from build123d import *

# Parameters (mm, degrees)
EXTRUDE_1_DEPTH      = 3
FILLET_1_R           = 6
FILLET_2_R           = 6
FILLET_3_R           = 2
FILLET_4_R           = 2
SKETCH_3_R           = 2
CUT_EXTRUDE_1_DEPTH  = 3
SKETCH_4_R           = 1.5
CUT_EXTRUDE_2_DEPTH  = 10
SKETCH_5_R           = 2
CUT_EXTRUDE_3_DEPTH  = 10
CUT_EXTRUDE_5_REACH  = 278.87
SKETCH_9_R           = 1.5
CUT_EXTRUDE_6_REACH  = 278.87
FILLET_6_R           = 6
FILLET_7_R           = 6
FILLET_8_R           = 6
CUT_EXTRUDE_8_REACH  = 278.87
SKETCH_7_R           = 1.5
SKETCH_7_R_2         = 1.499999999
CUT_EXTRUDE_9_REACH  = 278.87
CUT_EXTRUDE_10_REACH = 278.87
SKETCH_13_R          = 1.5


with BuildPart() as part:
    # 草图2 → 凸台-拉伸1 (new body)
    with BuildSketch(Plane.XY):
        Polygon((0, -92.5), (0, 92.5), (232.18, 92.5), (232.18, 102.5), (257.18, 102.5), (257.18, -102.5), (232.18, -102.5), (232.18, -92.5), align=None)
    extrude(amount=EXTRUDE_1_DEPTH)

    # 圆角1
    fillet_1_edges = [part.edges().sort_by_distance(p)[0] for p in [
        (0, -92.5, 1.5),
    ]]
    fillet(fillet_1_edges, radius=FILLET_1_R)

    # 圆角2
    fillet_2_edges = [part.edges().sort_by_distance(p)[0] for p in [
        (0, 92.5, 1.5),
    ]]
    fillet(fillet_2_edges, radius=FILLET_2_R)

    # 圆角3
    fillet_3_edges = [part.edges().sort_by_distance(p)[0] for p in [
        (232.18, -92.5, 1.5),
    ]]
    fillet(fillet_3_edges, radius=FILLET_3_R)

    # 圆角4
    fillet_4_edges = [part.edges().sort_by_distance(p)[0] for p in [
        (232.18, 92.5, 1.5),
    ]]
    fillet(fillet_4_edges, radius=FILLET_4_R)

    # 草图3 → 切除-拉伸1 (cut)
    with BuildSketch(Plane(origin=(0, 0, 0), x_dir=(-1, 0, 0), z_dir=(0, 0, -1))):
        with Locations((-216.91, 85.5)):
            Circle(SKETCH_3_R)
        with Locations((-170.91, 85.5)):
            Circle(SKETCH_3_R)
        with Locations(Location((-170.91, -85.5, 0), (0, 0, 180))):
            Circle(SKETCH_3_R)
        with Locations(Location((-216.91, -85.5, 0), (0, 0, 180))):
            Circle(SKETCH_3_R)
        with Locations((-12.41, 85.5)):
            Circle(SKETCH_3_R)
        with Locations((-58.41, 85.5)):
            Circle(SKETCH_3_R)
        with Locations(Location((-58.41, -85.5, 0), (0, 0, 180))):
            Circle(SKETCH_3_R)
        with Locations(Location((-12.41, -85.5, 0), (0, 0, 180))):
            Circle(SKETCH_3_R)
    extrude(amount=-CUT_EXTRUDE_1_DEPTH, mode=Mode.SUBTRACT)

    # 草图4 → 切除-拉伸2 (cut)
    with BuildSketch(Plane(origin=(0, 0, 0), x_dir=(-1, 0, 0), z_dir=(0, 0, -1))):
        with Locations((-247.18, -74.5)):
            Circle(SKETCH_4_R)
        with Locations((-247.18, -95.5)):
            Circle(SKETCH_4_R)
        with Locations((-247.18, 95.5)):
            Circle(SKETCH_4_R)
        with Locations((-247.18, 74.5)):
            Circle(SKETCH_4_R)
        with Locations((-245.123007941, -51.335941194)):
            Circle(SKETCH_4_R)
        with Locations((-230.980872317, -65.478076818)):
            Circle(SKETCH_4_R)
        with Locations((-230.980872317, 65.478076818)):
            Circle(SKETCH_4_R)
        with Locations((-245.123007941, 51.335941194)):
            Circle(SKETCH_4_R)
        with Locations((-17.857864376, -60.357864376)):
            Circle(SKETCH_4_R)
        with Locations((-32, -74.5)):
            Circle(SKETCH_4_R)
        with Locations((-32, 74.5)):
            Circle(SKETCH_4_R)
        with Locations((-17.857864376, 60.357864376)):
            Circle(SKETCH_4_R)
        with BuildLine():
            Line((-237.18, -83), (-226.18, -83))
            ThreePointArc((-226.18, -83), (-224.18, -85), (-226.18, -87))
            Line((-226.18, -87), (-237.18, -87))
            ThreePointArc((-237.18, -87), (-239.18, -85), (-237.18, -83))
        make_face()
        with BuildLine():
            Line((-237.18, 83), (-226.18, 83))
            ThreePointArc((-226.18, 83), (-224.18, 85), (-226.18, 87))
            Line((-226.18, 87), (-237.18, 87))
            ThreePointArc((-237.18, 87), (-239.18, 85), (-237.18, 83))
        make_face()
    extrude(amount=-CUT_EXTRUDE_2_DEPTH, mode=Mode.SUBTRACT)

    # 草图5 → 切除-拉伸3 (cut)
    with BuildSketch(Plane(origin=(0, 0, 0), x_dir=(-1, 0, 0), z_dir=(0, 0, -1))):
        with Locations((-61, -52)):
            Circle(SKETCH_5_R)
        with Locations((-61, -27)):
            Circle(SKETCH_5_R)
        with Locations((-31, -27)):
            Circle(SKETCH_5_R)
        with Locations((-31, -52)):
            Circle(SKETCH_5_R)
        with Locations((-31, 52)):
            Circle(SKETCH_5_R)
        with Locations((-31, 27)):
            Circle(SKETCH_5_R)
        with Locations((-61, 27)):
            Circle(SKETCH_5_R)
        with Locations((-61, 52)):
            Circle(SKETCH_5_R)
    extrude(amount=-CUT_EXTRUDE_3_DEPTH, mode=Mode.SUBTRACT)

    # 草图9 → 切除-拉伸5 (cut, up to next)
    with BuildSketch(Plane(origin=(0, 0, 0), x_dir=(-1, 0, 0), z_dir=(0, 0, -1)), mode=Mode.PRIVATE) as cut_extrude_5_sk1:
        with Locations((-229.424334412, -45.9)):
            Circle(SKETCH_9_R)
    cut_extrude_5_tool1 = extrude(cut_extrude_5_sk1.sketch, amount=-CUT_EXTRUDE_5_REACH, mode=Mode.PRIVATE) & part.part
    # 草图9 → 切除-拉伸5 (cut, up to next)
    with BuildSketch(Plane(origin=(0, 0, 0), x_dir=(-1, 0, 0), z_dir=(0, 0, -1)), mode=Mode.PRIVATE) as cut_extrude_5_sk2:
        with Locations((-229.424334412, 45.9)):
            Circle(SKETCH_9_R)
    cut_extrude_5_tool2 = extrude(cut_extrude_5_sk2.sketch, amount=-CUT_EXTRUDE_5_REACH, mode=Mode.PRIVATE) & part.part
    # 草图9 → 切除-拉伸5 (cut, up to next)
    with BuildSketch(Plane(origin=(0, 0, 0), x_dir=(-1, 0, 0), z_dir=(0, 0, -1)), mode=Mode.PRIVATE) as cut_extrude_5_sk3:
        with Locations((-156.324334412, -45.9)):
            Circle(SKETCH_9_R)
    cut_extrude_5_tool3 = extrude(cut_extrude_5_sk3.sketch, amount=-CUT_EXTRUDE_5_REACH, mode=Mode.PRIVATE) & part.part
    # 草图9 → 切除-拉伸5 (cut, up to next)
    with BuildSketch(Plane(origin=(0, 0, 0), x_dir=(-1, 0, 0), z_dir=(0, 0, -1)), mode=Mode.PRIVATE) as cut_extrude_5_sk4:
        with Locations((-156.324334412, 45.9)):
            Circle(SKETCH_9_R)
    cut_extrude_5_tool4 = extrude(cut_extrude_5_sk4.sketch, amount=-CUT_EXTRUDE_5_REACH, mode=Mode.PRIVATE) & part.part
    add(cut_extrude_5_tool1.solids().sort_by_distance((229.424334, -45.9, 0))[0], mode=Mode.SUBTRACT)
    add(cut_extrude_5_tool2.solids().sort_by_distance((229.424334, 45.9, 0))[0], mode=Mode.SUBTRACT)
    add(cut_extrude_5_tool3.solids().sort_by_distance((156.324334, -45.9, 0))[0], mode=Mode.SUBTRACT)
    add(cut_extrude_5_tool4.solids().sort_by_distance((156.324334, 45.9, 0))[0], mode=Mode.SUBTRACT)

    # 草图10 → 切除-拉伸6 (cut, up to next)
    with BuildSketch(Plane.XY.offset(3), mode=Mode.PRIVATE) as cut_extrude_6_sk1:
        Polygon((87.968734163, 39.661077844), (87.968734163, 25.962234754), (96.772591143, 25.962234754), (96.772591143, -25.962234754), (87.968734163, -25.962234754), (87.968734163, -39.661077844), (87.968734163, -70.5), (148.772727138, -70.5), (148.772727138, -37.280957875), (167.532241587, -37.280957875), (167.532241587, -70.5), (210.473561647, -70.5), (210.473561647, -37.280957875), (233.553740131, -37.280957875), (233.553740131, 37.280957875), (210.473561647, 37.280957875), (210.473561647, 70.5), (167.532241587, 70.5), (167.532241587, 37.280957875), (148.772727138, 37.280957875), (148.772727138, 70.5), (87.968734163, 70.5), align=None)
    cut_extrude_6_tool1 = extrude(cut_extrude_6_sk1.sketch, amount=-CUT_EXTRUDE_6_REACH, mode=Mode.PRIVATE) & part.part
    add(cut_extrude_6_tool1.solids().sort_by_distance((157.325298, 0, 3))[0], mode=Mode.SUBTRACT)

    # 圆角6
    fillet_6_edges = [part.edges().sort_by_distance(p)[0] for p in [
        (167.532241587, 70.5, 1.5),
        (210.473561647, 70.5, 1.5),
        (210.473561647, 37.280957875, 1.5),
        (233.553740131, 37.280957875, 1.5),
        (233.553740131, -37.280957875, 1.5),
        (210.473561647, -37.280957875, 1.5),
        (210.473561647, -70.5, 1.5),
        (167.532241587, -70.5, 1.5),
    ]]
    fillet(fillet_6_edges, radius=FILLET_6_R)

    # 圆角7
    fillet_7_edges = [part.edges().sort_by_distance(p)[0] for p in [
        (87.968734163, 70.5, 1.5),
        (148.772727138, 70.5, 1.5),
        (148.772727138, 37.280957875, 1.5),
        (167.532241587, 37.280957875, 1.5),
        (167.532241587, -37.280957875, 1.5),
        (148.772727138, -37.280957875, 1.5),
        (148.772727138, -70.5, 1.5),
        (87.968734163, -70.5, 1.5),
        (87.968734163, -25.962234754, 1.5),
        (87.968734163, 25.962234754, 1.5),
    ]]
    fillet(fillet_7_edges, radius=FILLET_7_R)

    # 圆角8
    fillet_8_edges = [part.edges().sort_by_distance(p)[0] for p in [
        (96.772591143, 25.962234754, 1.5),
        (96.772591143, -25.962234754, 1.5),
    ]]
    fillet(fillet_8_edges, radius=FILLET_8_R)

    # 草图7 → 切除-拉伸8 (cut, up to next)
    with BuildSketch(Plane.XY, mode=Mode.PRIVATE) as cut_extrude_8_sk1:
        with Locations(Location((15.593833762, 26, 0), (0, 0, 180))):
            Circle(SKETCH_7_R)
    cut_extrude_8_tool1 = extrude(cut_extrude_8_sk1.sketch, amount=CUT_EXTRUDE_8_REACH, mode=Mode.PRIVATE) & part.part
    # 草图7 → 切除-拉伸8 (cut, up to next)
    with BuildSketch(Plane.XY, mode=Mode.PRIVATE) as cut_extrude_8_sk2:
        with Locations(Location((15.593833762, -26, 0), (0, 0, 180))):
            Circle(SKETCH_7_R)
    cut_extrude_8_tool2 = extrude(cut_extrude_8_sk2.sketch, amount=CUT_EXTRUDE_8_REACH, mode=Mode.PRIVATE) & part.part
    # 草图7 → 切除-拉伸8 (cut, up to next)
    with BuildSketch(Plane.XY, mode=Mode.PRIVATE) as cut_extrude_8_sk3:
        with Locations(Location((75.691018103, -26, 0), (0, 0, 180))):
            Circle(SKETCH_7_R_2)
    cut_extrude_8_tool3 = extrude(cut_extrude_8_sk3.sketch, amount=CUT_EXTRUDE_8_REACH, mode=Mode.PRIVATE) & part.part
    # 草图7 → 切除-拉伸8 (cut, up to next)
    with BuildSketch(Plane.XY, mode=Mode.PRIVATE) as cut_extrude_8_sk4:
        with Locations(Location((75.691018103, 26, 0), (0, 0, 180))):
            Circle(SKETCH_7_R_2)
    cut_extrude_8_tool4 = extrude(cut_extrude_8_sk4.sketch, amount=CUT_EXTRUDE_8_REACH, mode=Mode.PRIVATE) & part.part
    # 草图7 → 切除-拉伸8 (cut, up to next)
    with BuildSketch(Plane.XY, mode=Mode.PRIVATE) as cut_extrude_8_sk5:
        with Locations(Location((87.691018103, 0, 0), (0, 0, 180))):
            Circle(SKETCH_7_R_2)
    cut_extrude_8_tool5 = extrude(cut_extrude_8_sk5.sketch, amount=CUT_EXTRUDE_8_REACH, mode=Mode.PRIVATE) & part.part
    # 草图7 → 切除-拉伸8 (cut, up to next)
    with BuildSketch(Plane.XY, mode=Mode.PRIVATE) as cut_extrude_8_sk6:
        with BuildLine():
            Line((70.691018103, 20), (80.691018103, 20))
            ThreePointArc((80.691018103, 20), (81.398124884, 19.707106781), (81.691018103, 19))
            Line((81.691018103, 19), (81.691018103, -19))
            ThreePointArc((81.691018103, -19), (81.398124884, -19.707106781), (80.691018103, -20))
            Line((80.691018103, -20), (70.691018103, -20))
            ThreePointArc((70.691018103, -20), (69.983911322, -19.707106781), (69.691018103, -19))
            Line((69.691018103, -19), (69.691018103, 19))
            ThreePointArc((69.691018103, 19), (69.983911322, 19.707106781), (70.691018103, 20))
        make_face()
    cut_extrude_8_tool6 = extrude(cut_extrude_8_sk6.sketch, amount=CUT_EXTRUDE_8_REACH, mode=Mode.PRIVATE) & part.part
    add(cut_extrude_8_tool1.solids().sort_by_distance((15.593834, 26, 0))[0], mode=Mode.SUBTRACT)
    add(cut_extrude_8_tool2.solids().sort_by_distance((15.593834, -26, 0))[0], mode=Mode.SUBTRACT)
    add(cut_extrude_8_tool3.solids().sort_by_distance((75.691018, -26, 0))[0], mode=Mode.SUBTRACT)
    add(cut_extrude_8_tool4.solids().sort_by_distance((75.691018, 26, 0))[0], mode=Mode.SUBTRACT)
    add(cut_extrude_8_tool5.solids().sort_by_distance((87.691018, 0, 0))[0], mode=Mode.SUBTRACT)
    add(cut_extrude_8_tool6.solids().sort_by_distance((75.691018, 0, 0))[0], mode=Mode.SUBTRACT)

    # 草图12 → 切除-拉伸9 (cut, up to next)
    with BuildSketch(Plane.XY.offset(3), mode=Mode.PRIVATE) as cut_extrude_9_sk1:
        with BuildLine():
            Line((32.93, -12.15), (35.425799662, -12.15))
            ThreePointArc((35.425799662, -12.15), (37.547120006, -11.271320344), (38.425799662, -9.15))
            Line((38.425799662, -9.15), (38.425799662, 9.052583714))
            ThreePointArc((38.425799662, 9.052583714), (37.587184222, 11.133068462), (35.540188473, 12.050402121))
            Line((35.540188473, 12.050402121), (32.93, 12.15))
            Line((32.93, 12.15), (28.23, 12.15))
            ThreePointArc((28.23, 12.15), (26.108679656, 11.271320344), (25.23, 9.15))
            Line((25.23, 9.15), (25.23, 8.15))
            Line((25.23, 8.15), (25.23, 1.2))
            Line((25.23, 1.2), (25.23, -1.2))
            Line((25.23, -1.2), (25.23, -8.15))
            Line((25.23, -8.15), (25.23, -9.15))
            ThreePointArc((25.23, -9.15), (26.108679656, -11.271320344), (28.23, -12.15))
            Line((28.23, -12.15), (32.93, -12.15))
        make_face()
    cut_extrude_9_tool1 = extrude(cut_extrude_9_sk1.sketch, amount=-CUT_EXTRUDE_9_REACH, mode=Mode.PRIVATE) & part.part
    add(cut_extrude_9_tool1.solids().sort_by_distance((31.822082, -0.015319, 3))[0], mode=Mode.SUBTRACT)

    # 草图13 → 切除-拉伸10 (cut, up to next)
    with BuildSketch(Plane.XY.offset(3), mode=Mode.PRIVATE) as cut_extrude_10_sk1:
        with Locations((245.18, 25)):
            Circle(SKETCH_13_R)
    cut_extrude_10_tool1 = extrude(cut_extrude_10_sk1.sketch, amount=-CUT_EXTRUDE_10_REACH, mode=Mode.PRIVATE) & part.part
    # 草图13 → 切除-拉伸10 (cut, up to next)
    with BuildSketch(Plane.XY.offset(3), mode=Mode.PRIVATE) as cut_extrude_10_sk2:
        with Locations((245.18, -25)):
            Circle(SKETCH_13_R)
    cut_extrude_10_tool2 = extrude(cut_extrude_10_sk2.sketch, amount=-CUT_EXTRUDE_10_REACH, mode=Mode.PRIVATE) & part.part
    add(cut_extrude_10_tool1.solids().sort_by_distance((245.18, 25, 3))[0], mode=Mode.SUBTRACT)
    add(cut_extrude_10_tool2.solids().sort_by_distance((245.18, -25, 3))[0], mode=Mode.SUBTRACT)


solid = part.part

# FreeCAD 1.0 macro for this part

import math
import FreeCAD as App
import Part
import Sketcher

V = App.Vector
Q = App.Units.Quantity


def edges_at(feature, points):
    """Names of the edges that pass closest to the given points."""
    edges = feature.Shape.Edges
    near = lambda p: min(range(len(edges)), key=lambda i: edges[i].distToShape(Part.Vertex(*p))[0])
    return sorted({f"Edge{near(p) + 1}" for p in points})


def add_polygon(sketch, points):
    """Adds a closed chain of lines whose ends are joined by coincident constraints."""
    first, n = sketch.GeometryCount, len(points)
    for a, b in zip(points, points[1:] + points[:1]):
        sketch.addGeometry(Part.LineSegment(App.Vector(*a, 0), App.Vector(*b, 0)), False)
    for i in range(n):
        sketch.addConstraint(Sketcher.Constraint("Coincident", first + i, 2, first + (i + 1) % n, 1))

doc = App.newDocument("Part")
body = doc.addObject("PartDesign::Body", "Body")

# Sketch on XY plane
sketch1 = body.newObject("Sketcher::SketchObject", "Sketch")
sketch1.AttachmentSupport = (doc.getObject("XY_Plane"), [""])
sketch1.MapMode = "FlatFace"
add_polygon(sketch1, [(0, 92), (0, -92), (232, -92), (232, -102), (257, -102), (257, 102), (232, 102), (232, 92)])  # lines 0-7
sketch1.addConstraint([
    Sketcher.Constraint("Vertical", 0),
    Sketcher.Constraint("Horizontal", 1),
    Sketcher.Constraint("Vertical", 2),
    Sketcher.Constraint("Horizontal", 3),
    Sketcher.Constraint("Vertical", 4),
    Sketcher.Constraint("Horizontal", 5),
    Sketcher.Constraint("Vertical", 6),
    Sketcher.Constraint("Horizontal", 7),
    Sketcher.Constraint("Symmetric", 0, 2, 7, 2, -1, 1),
    Sketcher.Constraint("Symmetric", 2, 2, 5, 2, -1),
    Sketcher.Constraint("DistanceX", 3, 1, 3, 2, Q("25 mm")),
    Sketcher.Constraint("DistanceY", 0, 2, 0, 1, Q("185 mm")),
    Sketcher.Constraint("DistanceY", 2, 2, 2, 1, Q("10 mm")),
    Sketcher.Constraint("DistanceX", 1, 1, 1, 2, Q("232.18 mm")),
])
pad1 = body.newObject("PartDesign::Pad", "Pad")
pad1.Profile = sketch1
pad1.Length = 3
doc.recompute()

fillet = body.newObject("PartDesign::Fillet", "Fillet")
fillet.Base = (pad1, edges_at(pad1, [(0, -92.5, 1.5)]))
fillet.Radius = 6
doc.recompute()

fillet2 = body.newObject("PartDesign::Fillet", "Fillet001")
fillet2.Base = (fillet, edges_at(fillet, [(0, 92.5, 1.5)]))
fillet2.Radius = 6
doc.recompute()

fillet3 = body.newObject("PartDesign::Fillet", "Fillet002")
fillet3.Base = (fillet2, edges_at(fillet2, [(232.18, -92.5, 1.5)]))
fillet3.Radius = 2
doc.recompute()

fillet4 = body.newObject("PartDesign::Fillet", "Fillet003")
fillet4.Base = (fillet3, edges_at(fillet3, [(232.18, 92.5, 1.5)]))
fillet4.Radius = 2

# Sketch on XY plane
sketch2 = body.newObject("Sketcher::SketchObject", "Sketch001")
sketch2.AttachmentSupport = (doc.getObject("XY_Plane"), [""])
sketch2.MapMode = "FlatFace"
sketch2.addGeometry([
    Part.Circle(V(216.9, 85.5, 0), V(0, 0, 1), 2),  # 0
    Part.Circle(V(170.9, 85.5, 0), V(0, 0, 1), 2),  # 1
    Part.Circle(V(170.9, -85.5, 0), V(0, 0, 1), 2),  # 2
    Part.Circle(V(216.9, -85.5, 0), V(0, 0, 1), 2),  # 3
    Part.Circle(V(12.4, 85.5, 0), V(0, 0, 1), 2),  # 4
    Part.Circle(V(58.4, 85.5, 0), V(0, 0, 1), 2),  # 5
    Part.Circle(V(58.4, -85.5, 0), V(0, 0, 1), 2),  # 6
    Part.Circle(V(12.4, -85.5, 0), V(0, 0, 1), 2),  # 7
], False)
sketch2.addConstraint([
    Sketcher.Constraint("Equal", 0, 1),
    Sketcher.Constraint("Equal", 1, 2),
    Sketcher.Constraint("Equal", 2, 3),
    Sketcher.Constraint("Equal", 3, 4),
    Sketcher.Constraint("Equal", 4, 5),
    Sketcher.Constraint("Equal", 5, 6),
    Sketcher.Constraint("Equal", 6, 7),
    Sketcher.Constraint("Symmetric", 1, 3, 2, 3, -1),
    Sketcher.Constraint("Symmetric", 0, 3, 3, 3, -1),
    Sketcher.Constraint("Symmetric", 5, 3, 6, 3, -1),
    Sketcher.Constraint("Symmetric", 4, 3, 7, 3, -1),
    Sketcher.Constraint("Horizontal", 0, 3, 1, 3),
    Sketcher.Constraint("Horizontal", 1, 3, 4, 3),
    Sketcher.Constraint("Horizontal", 4, 3, 5, 3),
    Sketcher.Constraint("Diameter", 0, Q("4 mm")),
    Sketcher.Constraint("DistanceX", 1, 3, 0, 3, Q("46 mm")),
    Sketcher.Constraint("DistanceY", 2, 3, 1, 3, Q("171 mm")),
    Sketcher.Constraint("DistanceX", 4, 3, 5, 3, Q("46 mm")),
    Sketcher.Constraint("DistanceX", 4, 3, 1, 3, Q("158.5 mm")),
    Sketcher.Constraint("DistanceX", -1, 1, 0, 3, Q("216.91 mm")),
])
pocket1 = body.newObject("PartDesign::Pocket", "Pocket")
pocket1.Profile = sketch2
pocket1.Length = 3
pocket1.Reversed = True

# Sketch on XY plane
sketch3 = body.newObject("Sketcher::SketchObject", "Sketch002")
sketch3.AttachmentSupport = (doc.getObject("XY_Plane"), [""])
sketch3.MapMode = "FlatFace"
sketch3.addGeometry([
    Part.Circle(V(247.2, -74.5, 0), V(0, 0, 1), 1.5),  # 0
    Part.Circle(V(247.2, -95.5, 0), V(0, 0, 1), 1.5),  # 1
    Part.Circle(V(247.2, 95.5, 0), V(0, 0, 1), 1.5),  # 2
    Part.Circle(V(247.2, 74.5, 0), V(0, 0, 1), 1.5),  # 3
    Part.Circle(V(245.1, -51.3, 0), V(0, 0, 1), 1.5),  # 4
    Part.Circle(V(231, -65.5, 0), V(0, 0, 1), 1.5),  # 5
    Part.Circle(V(231, 65.5, 0), V(0, 0, 1), 1.5),  # 6
    Part.Circle(V(245.1, 51.3, 0), V(0, 0, 1), 1.5),  # 7
    Part.Circle(V(17.9, -60.4, 0), V(0, 0, 1), 1.5),  # 8
    Part.Circle(V(32, -74.5, 0), V(0, 0, 1), 1.5),  # 9
    Part.Circle(V(32, 74.5, 0), V(0, 0, 1), 1.5),  # 10
    Part.Circle(V(17.9, 60.4, 0), V(0, 0, 1), 1.5),  # 11
    Part.LineSegment(V(226.2, -83, 0), V(237.2, -83, 0)),  # 12
    Part.ArcOfCircle(Part.Circle(V(237.2, -85, 0), V(0, 0, 1), 2), math.radians(-90), math.radians(90)),  # 13
    Part.LineSegment(V(237.2, -87, 0), V(226.2, -87, 0)),  # 14
    Part.ArcOfCircle(Part.Circle(V(226.2, -85, 0), V(0, 0, 1), 2), math.radians(90), math.radians(270)),  # 15
    Part.LineSegment(V(237.2, 83, 0), V(226.2, 83, 0)),  # 16
    Part.ArcOfCircle(Part.Circle(V(226.2, 85, 0), V(0, 0, 1), 2), math.radians(90), math.radians(270)),  # 17
    Part.LineSegment(V(226.2, 87, 0), V(237.2, 87, 0)),  # 18
    Part.ArcOfCircle(Part.Circle(V(237.2, 85, 0), V(0, 0, 1), 2), math.radians(-90), math.radians(90)),  # 19
], False)
sketch3.addConstraint([
    Sketcher.Constraint("Tangent", 12, 2, 13, 2),
    Sketcher.Constraint("Tangent", 13, 1, 14, 1),
    Sketcher.Constraint("Tangent", 14, 2, 15, 2),
    Sketcher.Constraint("Tangent", 15, 1, 12, 1),
    Sketcher.Constraint("Tangent", 16, 2, 17, 2),
    Sketcher.Constraint("Tangent", 17, 1, 18, 1),
    Sketcher.Constraint("Tangent", 18, 2, 19, 2),
    Sketcher.Constraint("Tangent", 19, 1, 16, 1),
    Sketcher.Constraint("Horizontal", 12),
    Sketcher.Constraint("Horizontal", 14),
    Sketcher.Constraint("Horizontal", 16),
    Sketcher.Constraint("Horizontal", 18),
    Sketcher.Constraint("Equal", 0, 1),
    Sketcher.Constraint("Equal", 1, 2),
    Sketcher.Constraint("Equal", 2, 3),
    Sketcher.Constraint("Equal", 3, 4),
    Sketcher.Constraint("Equal", 4, 5),
    Sketcher.Constraint("Equal", 5, 6),
    Sketcher.Constraint("Equal", 6, 7),
    Sketcher.Constraint("Equal", 7, 8),
    Sketcher.Constraint("Equal", 8, 9),
    Sketcher.Constraint("Equal", 9, 10),
    Sketcher.Constraint("Equal", 10, 11),
    Sketcher.Constraint("Equal", 15, 17),
    Sketcher.Constraint("Symmetric", 1, 3, 2, 3, -1),
    Sketcher.Constraint("Symmetric", 0, 3, 3, 3, -1),
    Sketcher.Constraint("Symmetric", 5, 3, 6, 3, -1),
    Sketcher.Constraint("Symmetric", 4, 3, 7, 3, -1),
    Sketcher.Constraint("Symmetric", 9, 3, 10, 3, -1),
    Sketcher.Constraint("Symmetric", 8, 3, 11, 3, -1),
    Sketcher.Constraint("Symmetric", 15, 3, 17, 3, -1),
    Sketcher.Constraint("Horizontal", 0, 3, 9, 3),
    Sketcher.Constraint("Vertical", 0, 3, 1, 3),
    Sketcher.Constraint("Vertical", 13, 3, 19, 3),
    Sketcher.Constraint("Diameter", 0, Q("3 mm")),
    Sketcher.Constraint("Radius", 13, Q("2 mm")),
    Sketcher.Constraint("DistanceX", 12, 1, 12, 2, Q("11 mm")),
    Sketcher.Constraint("DistanceX", -1, 1, 9, 3, Q("32 mm")),
    Sketcher.Constraint("DistanceY", 13, 3, -1, 1, Q("85 mm")),
    Sketcher.Constraint("DistanceY", 1, 3, 0, 3, Q("21 mm")),
    Sketcher.Constraint("DistanceY", 0, 3, 2, 3, Q("170 mm")),
    Sketcher.Constraint("DistanceX", 13, 3, 0, 3, Q("10 mm")),
    Sketcher.Constraint("DistanceX", -1, 1, 0, 3, Q("247.18 mm")),
    Sketcher.Constraint("DistanceY", 4, 3, -1, 1, Q("51.335941 mm")),
    Sketcher.Constraint("DistanceY", 4, 3, 6, 3, Q("116.814018 mm")),
    Sketcher.Constraint("DistanceY", 8, 3, 6, 3, Q("125.835941 mm")),
    Sketcher.Constraint("DistanceX", -1, 1, 4, 3, Q("245.123008 mm")),
    Sketcher.Constraint("DistanceX", -1, 1, 5, 3, Q("230.980872 mm")),
    Sketcher.Constraint("DistanceX", -1, 1, 8, 3, Q("17.857864 mm")),
])
pocket2 = body.newObject("PartDesign::Pocket", "Pocket001")
pocket2.Profile = sketch3
pocket2.Length = 10
pocket2.Reversed = True

# Sketch on XY plane
sketch4 = body.newObject("Sketcher::SketchObject", "Sketch003")
sketch4.AttachmentSupport = (doc.getObject("XY_Plane"), [""])
sketch4.MapMode = "FlatFace"
sketch4.addGeometry([
    Part.Circle(V(61, -52, 0), V(0, 0, 1), 2),  # 0
    Part.Circle(V(61, -27, 0), V(0, 0, 1), 2),  # 1
    Part.Circle(V(31, -27, 0), V(0, 0, 1), 2),  # 2
    Part.Circle(V(31, -52, 0), V(0, 0, 1), 2),  # 3
    Part.Circle(V(31, 52, 0), V(0, 0, 1), 2),  # 4
    Part.Circle(V(31, 27, 0), V(0, 0, 1), 2),  # 5
    Part.Circle(V(61, 27, 0), V(0, 0, 1), 2),  # 6
    Part.Circle(V(61, 52, 0), V(0, 0, 1), 2),  # 7
], False)
sketch4.addConstraint([
    Sketcher.Constraint("Equal", 0, 1),
    Sketcher.Constraint("Equal", 1, 2),
    Sketcher.Constraint("Equal", 2, 3),
    Sketcher.Constraint("Equal", 3, 4),
    Sketcher.Constraint("Equal", 4, 5),
    Sketcher.Constraint("Equal", 5, 6),
    Sketcher.Constraint("Equal", 6, 7),
    Sketcher.Constraint("Symmetric", 3, 3, 4, 3, -1),
    Sketcher.Constraint("Symmetric", 2, 3, 5, 3, -1),
    Sketcher.Constraint("Symmetric", 1, 3, 6, 3, -1),
    Sketcher.Constraint("Symmetric", 0, 3, 7, 3, -1),
    Sketcher.Constraint("Horizontal", 1, 3, 2, 3),
    Sketcher.Constraint("Horizontal", 0, 3, 3, 3),
    Sketcher.Constraint("Vertical", 0, 3, 1, 3),
    Sketcher.Constraint("Vertical", 2, 3, 3, 3),
    Sketcher.Constraint("Diameter", 0, Q("4 mm")),
    Sketcher.Constraint("DistanceX", -1, 1, 0, 3, Q("61 mm")),
    Sketcher.Constraint("DistanceY", 0, 3, -1, 1, Q("52 mm")),
    Sketcher.Constraint("DistanceY", 1, 3, -1, 1, Q("27 mm")),
    Sketcher.Constraint("DistanceX", -1, 1, 2, 3, Q("31 mm")),
])
pocket3 = body.newObject("PartDesign::Pocket", "Pocket002")
pocket3.Profile = sketch4
pocket3.Length = 10
pocket3.Reversed = True

# Sketch on XY plane
sketch5 = body.newObject("Sketcher::SketchObject", "Sketch004")
sketch5.AttachmentSupport = (doc.getObject("XY_Plane"), [""])
sketch5.MapMode = "FlatFace"
sketch5.addGeometry(Part.Circle(V(229.4, -45.9, 0), V(0, 0, 1), 1.5), False)
sketch5.addConstraint([
    Sketcher.Constraint("Diameter", 0, Q("3 mm")),
    Sketcher.Constraint("DistanceY", 0, 3, -1, 1, Q("45.9 mm")),
    Sketcher.Constraint("DistanceX", -1, 1, 0, 3, Q("229.424334 mm")),
])
pocket4 = body.newObject("PartDesign::Pocket", "Pocket003")
pocket4.Profile = sketch5
pocket4.Type = "UpToFirst"
pocket4.Reversed = True

# Sketch on XY plane
sketch6 = body.newObject("Sketcher::SketchObject", "Sketch005")
sketch6.AttachmentSupport = (doc.getObject("XY_Plane"), [""])
sketch6.MapMode = "FlatFace"
sketch6.addGeometry(Part.Circle(V(229.4, 45.9, 0), V(0, 0, 1), 1.5), False)
sketch6.addConstraint([
    Sketcher.Constraint("Diameter", 0, Q("3 mm")),
    Sketcher.Constraint("DistanceY", -1, 1, 0, 3, Q("45.9 mm")),
    Sketcher.Constraint("DistanceX", -1, 1, 0, 3, Q("229.424334 mm")),
])
pocket5 = body.newObject("PartDesign::Pocket", "Pocket004")
pocket5.Profile = sketch6
pocket5.Type = "UpToFirst"
pocket5.Reversed = True

# Sketch on XY plane
sketch7 = body.newObject("Sketcher::SketchObject", "Sketch006")
sketch7.AttachmentSupport = (doc.getObject("XY_Plane"), [""])
sketch7.MapMode = "FlatFace"
sketch7.addGeometry(Part.Circle(V(156.3, -45.9, 0), V(0, 0, 1), 1.5), False)
sketch7.addConstraint([
    Sketcher.Constraint("Diameter", 0, Q("3 mm")),
    Sketcher.Constraint("DistanceY", 0, 3, -1, 1, Q("45.9 mm")),
    Sketcher.Constraint("DistanceX", -1, 1, 0, 3, Q("156.324334 mm")),
])
pocket6 = body.newObject("PartDesign::Pocket", "Pocket005")
pocket6.Profile = sketch7
pocket6.Type = "UpToFirst"
pocket6.Reversed = True

# Sketch on XY plane
sketch8 = body.newObject("Sketcher::SketchObject", "Sketch007")
sketch8.AttachmentSupport = (doc.getObject("XY_Plane"), [""])
sketch8.MapMode = "FlatFace"
sketch8.addGeometry(Part.Circle(V(156.3, 45.9, 0), V(0, 0, 1), 1.5), False)
sketch8.addConstraint([
    Sketcher.Constraint("Diameter", 0, Q("3 mm")),
    Sketcher.Constraint("DistanceY", -1, 1, 0, 3, Q("45.9 mm")),
    Sketcher.Constraint("DistanceX", -1, 1, 0, 3, Q("156.324334 mm")),
])
pocket7 = body.newObject("PartDesign::Pocket", "Pocket006")
pocket7.Profile = sketch8
pocket7.Type = "UpToFirst"
pocket7.Reversed = True

# Sketch on XY plane
sketch9 = body.newObject("Sketcher::SketchObject", "Sketch008")
sketch9.AttachmentSupport = (doc.getObject("XY_Plane"), [""])
sketch9.MapMode = "FlatFace"
sketch9.AttachmentOffset = App.Placement(V(0, 0, 3), App.Rotation())
add_polygon(sketch9, [(88, 26), (97, 26), (97, -26), (88, -26), (88, -70), (149, -70), (149, -37), (168, -37), (168, -70), (210, -70), (210, -37), (234, -37), (234, 37), (210, 37), (210, 70), (168, 70), (168, 37), (149, 37), (149, 70), (88, 70)])  # lines 0-19
sketch9.addConstraint([
    Sketcher.Constraint("Horizontal", 0),
    Sketcher.Constraint("Vertical", 1),
    Sketcher.Constraint("Horizontal", 2),
    Sketcher.Constraint("Vertical", 3),
    Sketcher.Constraint("Horizontal", 4),
    Sketcher.Constraint("Vertical", 5),
    Sketcher.Constraint("Horizontal", 6),
    Sketcher.Constraint("Vertical", 7),
    Sketcher.Constraint("Horizontal", 8),
    Sketcher.Constraint("Vertical", 9),
    Sketcher.Constraint("Horizontal", 10),
    Sketcher.Constraint("Vertical", 11),
    Sketcher.Constraint("Horizontal", 12),
    Sketcher.Constraint("Vertical", 13),
    Sketcher.Constraint("Horizontal", 14),
    Sketcher.Constraint("Vertical", 15),
    Sketcher.Constraint("Horizontal", 16),
    Sketcher.Constraint("Vertical", 17),
    Sketcher.Constraint("Horizontal", 18),
    Sketcher.Constraint("Vertical", 19),
    Sketcher.Constraint("Symmetric", 9, 2, 12, 2, -1),
    Sketcher.Constraint("Symmetric", 7, 2, 14, 2, -1),
    Sketcher.Constraint("Symmetric", 5, 2, 16, 2, -1),
    Sketcher.Constraint("Symmetric", 3, 2, 18, 2, -1),
    Sketcher.Constraint("Horizontal", 4, 2, 7, 2),
    Sketcher.Constraint("Horizontal", 6, 2, 9, 2),
    Sketcher.Constraint("Equal", 3, 19),
    Sketcher.Constraint("DistanceY", 3, 2, -1, 1, Q("70.5 mm")),
    Sketcher.Constraint("DistanceX", 8, 1, 8, 2, Q("42.94132 mm")),
    Sketcher.Constraint("DistanceX", 10, 1, 10, 2, Q("23.080178 mm")),
    Sketcher.Constraint("DistanceY", 1, 2, 1, 1, Q("51.92447 mm")),
    Sketcher.Constraint("DistanceX", 0, 1, 0, 2, Q("8.803857 mm")),
    Sketcher.Constraint("DistanceX", 4, 1, 4, 2, Q("60.803993 mm")),
    Sketcher.Constraint("DistanceX", 6, 1, 6, 2, Q("18.759514 mm")),
    Sketcher.Constraint("DistanceY", 5, 1, 5, 2, Q("33.219042 mm")),
    Sketcher.Constraint("DistanceX", -1, 1, 0, 2, Q("96.772591 mm")),
])
pocket8 = body.newObject("PartDesign::Pocket", "Pocket007")
pocket8.Profile = sketch9
pocket8.Type = "UpToFirst"
doc.recompute()

fillet5 = body.newObject("PartDesign::Fillet", "Fillet004")
fillet5.Base = (pocket8, edges_at(pocket8, [
    (167.532, 70.5, 1.5),
    (210.474, 70.5, 1.5),
    (210.474, 37.281, 1.5),
    (233.554, 37.281, 1.5),
    (233.554, -37.281, 1.5),
    (210.474, -37.281, 1.5),
    (210.474, -70.5, 1.5),
    (167.532, -70.5, 1.5),
]))
fillet5.Radius = 6
doc.recompute()

fillet6 = body.newObject("PartDesign::Fillet", "Fillet005")
fillet6.Base = (fillet5, edges_at(fillet5, [
    (87.969, 70.5, 1.5),
    (148.773, 70.5, 1.5),
    (148.773, 37.281, 1.5),
    (167.532, 37.281, 1.5),
    (167.532, -37.281, 1.5),
    (148.773, -37.281, 1.5),
    (148.773, -70.5, 1.5),
    (87.969, -70.5, 1.5),
    (87.969, -25.962, 1.5),
    (87.969, 25.962, 1.5),
]))
fillet6.Radius = 6
doc.recompute()

fillet7 = body.newObject("PartDesign::Fillet", "Fillet006")
fillet7.Base = (fillet6, edges_at(fillet6, [(96.773, 25.962, 1.5), (96.773, -25.962, 1.5)]))
fillet7.Radius = 6

# Sketch on XY plane
sketch10 = body.newObject("Sketcher::SketchObject", "Sketch009")
sketch10.AttachmentSupport = (doc.getObject("XY_Plane"), [""])
sketch10.MapMode = "FlatFace"
sketch10.addGeometry(Part.Circle(V(15.6, 26, 0), V(0, 0, 1), 1.5), False)
sketch10.addConstraint([
    Sketcher.Constraint("Diameter", 0, Q("3 mm")),
    Sketcher.Constraint("DistanceY", -1, 1, 0, 3, Q("26 mm")),
    Sketcher.Constraint("DistanceX", -1, 1, 0, 3, Q("15.593834 mm")),
])
pocket9 = body.newObject("PartDesign::Pocket", "Pocket008")
pocket9.Profile = sketch10
pocket9.Type = "UpToFirst"
pocket9.Reversed = True

# Sketch on XY plane
sketch11 = body.newObject("Sketcher::SketchObject", "Sketch010")
sketch11.AttachmentSupport = (doc.getObject("XY_Plane"), [""])
sketch11.MapMode = "FlatFace"
sketch11.addGeometry(Part.Circle(V(15.6, -26, 0), V(0, 0, 1), 1.5), False)
sketch11.addConstraint([
    Sketcher.Constraint("Diameter", 0, Q("3 mm")),
    Sketcher.Constraint("DistanceY", 0, 3, -1, 1, Q("26 mm")),
    Sketcher.Constraint("DistanceX", -1, 1, 0, 3, Q("15.593834 mm")),
])
pocket10 = body.newObject("PartDesign::Pocket", "Pocket009")
pocket10.Profile = sketch11
pocket10.Type = "UpToFirst"
pocket10.Reversed = True

# Sketch on XY plane
sketch12 = body.newObject("Sketcher::SketchObject", "Sketch011")
sketch12.AttachmentSupport = (doc.getObject("XY_Plane"), [""])
sketch12.MapMode = "FlatFace"
sketch12.addGeometry(Part.Circle(V(75.7, -26, 0), V(0, 0, 1), 1.5), False)
sketch12.addConstraint([
    Sketcher.Constraint("Diameter", 0, Q("3 mm")),
    Sketcher.Constraint("DistanceY", 0, 3, -1, 1, Q("26 mm")),
    Sketcher.Constraint("DistanceX", -1, 1, 0, 3, Q("75.691018 mm")),
])
pocket11 = body.newObject("PartDesign::Pocket", "Pocket010")
pocket11.Profile = sketch12
pocket11.Type = "UpToFirst"
pocket11.Reversed = True

# Sketch on XY plane
sketch13 = body.newObject("Sketcher::SketchObject", "Sketch012")
sketch13.AttachmentSupport = (doc.getObject("XY_Plane"), [""])
sketch13.MapMode = "FlatFace"
sketch13.addGeometry(Part.Circle(V(75.7, 26, 0), V(0, 0, 1), 1.5), False)
sketch13.addConstraint([
    Sketcher.Constraint("Diameter", 0, Q("3 mm")),
    Sketcher.Constraint("DistanceY", -1, 1, 0, 3, Q("26 mm")),
    Sketcher.Constraint("DistanceX", -1, 1, 0, 3, Q("75.691018 mm")),
])
pocket12 = body.newObject("PartDesign::Pocket", "Pocket011")
pocket12.Profile = sketch13
pocket12.Type = "UpToFirst"
pocket12.Reversed = True

# Sketch on XY plane
sketch14 = body.newObject("Sketcher::SketchObject", "Sketch013")
sketch14.AttachmentSupport = (doc.getObject("XY_Plane"), [""])
sketch14.MapMode = "FlatFace"
sketch14.addGeometry(Part.Circle(V(87.7, 0, 0), V(0, 0, 1), 1.5), False)
sketch14.addConstraint([
    Sketcher.Constraint("PointOnObject", 0, 3, -1),
    Sketcher.Constraint("Diameter", 0, Q("3 mm")),
    Sketcher.Constraint("DistanceX", -1, 1, 0, 3, Q("87.691018 mm")),
])
pocket13 = body.newObject("PartDesign::Pocket", "Pocket012")
pocket13.Profile = sketch14
pocket13.Type = "UpToFirst"
pocket13.Reversed = True

# Sketch on XY plane
sketch15 = body.newObject("Sketcher::SketchObject", "Sketch014")
sketch15.AttachmentSupport = (doc.getObject("XY_Plane"), [""])
sketch15.MapMode = "FlatFace"
sketch15.addGeometry([
    Part.LineSegment(V(80.7, 20, 0), V(70.7, 20, 0)),  # 0
    Part.ArcOfCircle(Part.Circle(V(70.7, 19, 0), V(0, 0, 1), 1), math.radians(90), math.radians(180)),  # 1
    Part.LineSegment(V(69.7, 19, 0), V(69.7, -19, 0)),  # 2
    Part.ArcOfCircle(Part.Circle(V(70.7, -19, 0), V(0, 0, 1), 1), math.radians(-180), math.radians(-90)),  # 3
    Part.LineSegment(V(70.7, -20, 0), V(80.7, -20, 0)),  # 4
    Part.ArcOfCircle(Part.Circle(V(80.7, -19, 0), V(0, 0, 1), 1), math.radians(-90), math.radians(0)),  # 5
    Part.LineSegment(V(81.7, -19, 0), V(81.7, 19, 0)),  # 6
    Part.ArcOfCircle(Part.Circle(V(80.7, 19, 0), V(0, 0, 1), 1), math.radians(0), math.radians(90)),  # 7
], False)
sketch15.addConstraint([
    Sketcher.Constraint("Tangent", 0, 2, 1, 1),
    Sketcher.Constraint("Tangent", 1, 2, 2, 1),
    Sketcher.Constraint("Tangent", 2, 2, 3, 1),
    Sketcher.Constraint("Tangent", 3, 2, 4, 1),
    Sketcher.Constraint("Tangent", 4, 2, 5, 1),
    Sketcher.Constraint("Tangent", 5, 2, 6, 1),
    Sketcher.Constraint("Tangent", 6, 2, 7, 1),
    Sketcher.Constraint("Tangent", 7, 2, 0, 1),
    Sketcher.Constraint("Horizontal", 0),
    Sketcher.Constraint("Vertical", 2),
    Sketcher.Constraint("Horizontal", 4),
    Sketcher.Constraint("Vertical", 6),
    Sketcher.Constraint("Equal", 1, 3),
    Sketcher.Constraint("Equal", 3, 5),
    Sketcher.Constraint("Equal", 5, 7),
    Sketcher.Constraint("Radius", 1, Q("1 mm")),
    Sketcher.Constraint("DistanceX", 0, 2, 0, 1, Q("10 mm")),
    Sketcher.Constraint("DistanceY", 2, 2, 2, 1, Q("38 mm")),
    Sketcher.Constraint("DistanceY", -1, 1, 1, 3, Q("19 mm")),
    Sketcher.Constraint("DistanceX", -1, 1, 1, 3, Q("70.691018 mm")),
])
pocket14 = body.newObject("PartDesign::Pocket", "Pocket013")
pocket14.Profile = sketch15
pocket14.Type = "UpToFirst"
pocket14.Reversed = True

# Sketch on XY plane
sketch16 = body.newObject("Sketcher::SketchObject", "Sketch015")
sketch16.AttachmentSupport = (doc.getObject("XY_Plane"), [""])
sketch16.MapMode = "FlatFace"
sketch16.AttachmentOffset = App.Placement(V(0, 0, 3), App.Rotation())
sketch16.addGeometry([
    Part.ArcOfCircle(Part.Circle(V(35.4, -9.2, 0), V(0, 0, 1), 3), math.radians(-90), math.radians(0)),  # 0
    Part.LineSegment(V(38.4, -9.2, 0), V(38.4, 9.1, 0)),  # 1
    Part.ArcOfCircle(Part.Circle(V(35.4, 9.1, 0), V(0, 0, 1), 3), math.radians(0), math.radians(88)),  # 2
    Part.LineSegment(V(35.5, 12.1, 0), V(32.9, 12.2, 0)),  # 3
    Part.LineSegment(V(32.9, 12.2, 0), V(28.2, 12.2, 0)),  # 4
    Part.ArcOfCircle(Part.Circle(V(28.2, 9.2, 0), V(0, 0, 1), 3), math.radians(90), math.radians(180)),  # 5
    Part.LineSegment(V(25.2, 9.2, 0), V(25.2, -9.2, 0)),  # 6
    Part.ArcOfCircle(Part.Circle(V(28.2, -9.2, 0), V(0, 0, 1), 3), math.radians(180), math.radians(270)),  # 7
    Part.LineSegment(V(28.2, -12.2, 0), V(35.4, -12.2, 0)),  # 8
], False)
sketch16.addConstraint([
    Sketcher.Constraint("Tangent", 0, 2, 1, 1),
    Sketcher.Constraint("Tangent", 1, 2, 2, 1),
    Sketcher.Constraint("Tangent", 2, 2, 3, 1),
    Sketcher.Constraint("Coincident", 3, 2, 4, 1),
    Sketcher.Constraint("Tangent", 4, 2, 5, 1),
    Sketcher.Constraint("Tangent", 5, 2, 6, 1),
    Sketcher.Constraint("Tangent", 6, 2, 7, 1),
    Sketcher.Constraint("Tangent", 7, 2, 8, 1),
    Sketcher.Constraint("Tangent", 8, 2, 0, 1),
    Sketcher.Constraint("Vertical", 1),
    Sketcher.Constraint("Horizontal", 4),
    Sketcher.Constraint("Vertical", 6),
    Sketcher.Constraint("Horizontal", 8),
    Sketcher.Constraint("Equal", 0, 2),
    Sketcher.Constraint("Equal", 2, 5),
    Sketcher.Constraint("Equal", 5, 7),
    Sketcher.Constraint("Radius", 0, Q("3 mm")),
    Sketcher.Constraint("DistanceX", 4, 2, 4, 1, Q("4.7 mm")),
    Sketcher.Constraint("DistanceY", 6, 2, 6, 1, Q("18.3 mm")),
    Sketcher.Constraint("DistanceY", 0, 3, -1, 1, Q("9.15 mm")),
    Sketcher.Constraint("DistanceX", -1, 1, 5, 3, Q("28.23 mm")),
    Sketcher.Constraint("DistanceX", 8, 1, 8, 2, Q("7.1958 mm")),
    Sketcher.Constraint("DistanceY", 1, 1, 1, 2, Q("18.202584 mm")),
])
pocket15 = body.newObject("PartDesign::Pocket", "Pocket014")
pocket15.Profile = sketch16
pocket15.Type = "UpToFirst"

# Sketch on XY plane
sketch17 = body.newObject("Sketcher::SketchObject", "Sketch016")
sketch17.AttachmentSupport = (doc.getObject("XY_Plane"), [""])
sketch17.MapMode = "FlatFace"
sketch17.AttachmentOffset = App.Placement(V(0, 0, 3), App.Rotation())
sketch17.addGeometry(Part.Circle(V(245.2, 25, 0), V(0, 0, 1), 1.5), False)
sketch17.addConstraint([
    Sketcher.Constraint("Diameter", 0, Q("3 mm")),
    Sketcher.Constraint("DistanceY", -1, 1, 0, 3, Q("25 mm")),
    Sketcher.Constraint("DistanceX", -1, 1, 0, 3, Q("245.18 mm")),
])
pocket16 = body.newObject("PartDesign::Pocket", "Pocket015")
pocket16.Profile = sketch17
pocket16.Type = "UpToFirst"

# Sketch on XY plane
sketch18 = body.newObject("Sketcher::SketchObject", "Sketch017")
sketch18.AttachmentSupport = (doc.getObject("XY_Plane"), [""])
sketch18.MapMode = "FlatFace"
sketch18.AttachmentOffset = App.Placement(V(0, 0, 3), App.Rotation())
sketch18.addGeometry(Part.Circle(V(245.2, -25, 0), V(0, 0, 1), 1.5), False)
sketch18.addConstraint([
    Sketcher.Constraint("Diameter", 0, Q("3 mm")),
    Sketcher.Constraint("DistanceY", 0, 3, -1, 1, Q("25 mm")),
    Sketcher.Constraint("DistanceX", -1, 1, 0, 3, Q("245.18 mm")),
])
pocket17 = body.newObject("PartDesign::Pocket", "Pocket016")
pocket17.Profile = sketch18
pocket17.Type = "UpToFirst"

doc.recompute()
